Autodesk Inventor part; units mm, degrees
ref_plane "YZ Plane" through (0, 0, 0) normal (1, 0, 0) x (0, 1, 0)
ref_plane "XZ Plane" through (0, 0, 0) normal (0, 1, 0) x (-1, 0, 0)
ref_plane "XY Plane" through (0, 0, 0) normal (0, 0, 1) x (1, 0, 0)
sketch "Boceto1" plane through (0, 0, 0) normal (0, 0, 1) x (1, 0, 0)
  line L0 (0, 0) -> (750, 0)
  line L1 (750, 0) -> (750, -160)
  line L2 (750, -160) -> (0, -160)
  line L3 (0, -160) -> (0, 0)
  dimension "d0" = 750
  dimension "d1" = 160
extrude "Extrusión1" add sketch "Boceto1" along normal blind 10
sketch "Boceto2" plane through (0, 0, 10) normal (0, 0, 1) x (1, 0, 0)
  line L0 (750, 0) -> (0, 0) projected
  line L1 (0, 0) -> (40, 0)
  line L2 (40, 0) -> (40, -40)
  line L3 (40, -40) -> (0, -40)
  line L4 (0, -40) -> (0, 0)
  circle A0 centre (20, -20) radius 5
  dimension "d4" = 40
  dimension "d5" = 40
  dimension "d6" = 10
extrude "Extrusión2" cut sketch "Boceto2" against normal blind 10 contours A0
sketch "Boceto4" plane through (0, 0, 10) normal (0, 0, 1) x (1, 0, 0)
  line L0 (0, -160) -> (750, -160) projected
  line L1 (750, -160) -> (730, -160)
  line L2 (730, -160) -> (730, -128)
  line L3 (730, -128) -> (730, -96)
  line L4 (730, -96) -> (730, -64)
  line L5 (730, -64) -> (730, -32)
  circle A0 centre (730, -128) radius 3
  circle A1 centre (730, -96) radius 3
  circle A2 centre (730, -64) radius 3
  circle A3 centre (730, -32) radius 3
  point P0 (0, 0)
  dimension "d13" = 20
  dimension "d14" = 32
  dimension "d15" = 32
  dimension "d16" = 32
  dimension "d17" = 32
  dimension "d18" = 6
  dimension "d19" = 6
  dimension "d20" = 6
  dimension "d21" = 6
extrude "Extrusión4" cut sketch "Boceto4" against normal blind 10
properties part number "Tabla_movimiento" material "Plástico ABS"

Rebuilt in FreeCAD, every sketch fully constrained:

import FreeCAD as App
import Part
import Sketcher
Q = App.Units.Quantity


def add_polygon(sketch, points):
    """Adds a closed chain of lines whose ends are joined by coincident constraints."""
    first, n = sketch.GeometryCount, len(points)
    for a, b in zip(points, points[1:] + points[:1]):
        sketch.addGeometry(Part.LineSegment(App.Vector(*a, 0), App.Vector(*b, 0)), False)
    for i in range(n):
        sketch.addConstraint(Sketcher.Constraint("Coincident", first + i, 2, first + (i + 1) % n, 1))

doc = App.newDocument("Part")
params = doc.addObject("Spreadsheet::Sheet", "Params")
for row, (alias, value) in enumerate([
    ("sketch1_width", "750 mm"),
    ("sketch1_height", "160 mm"),
    ("pad1_length", "10 mm"),
    ("sketch2_diameter", "10 mm"),
    ("pocket1_length", "10 mm"),
    ("sketch3_diameter", "6 mm"),
    ("pocket2_length", "10 mm"),
], start=1):
    params.set(f"A{row}", alias)
    params.set(f"B{row}", "=" + value)
    params.setAlias(f"B{row}", alias)

body = doc.addObject("PartDesign::Body", "Body")

# Sketch on XY plane
sketch1 = body.newObject("Sketcher::SketchObject", "Sketch")
sketch1.AttachmentSupport = (doc.getObject("XY_Plane"), [""])
sketch1.MapMode = "FlatFace"
add_polygon(sketch1, [(750, 0), (0, 0), (0, -160), (750, -160)])  # lines 0-3
sketch1.addConstraint(Sketcher.Constraint("Horizontal", 0))
sketch1.addConstraint(Sketcher.Constraint("Vertical", 1))
sketch1.addConstraint(Sketcher.Constraint("Horizontal", 2))
sketch1.addConstraint(Sketcher.Constraint("Vertical", 3))
sketch1.addConstraint(Sketcher.Constraint("Coincident", 0, 2, -1, 1))
sketch1.addConstraint(Sketcher.Constraint("DistanceX", 0, 2, 0, 1, Q("750 mm")))
sketch1.addConstraint(Sketcher.Constraint("DistanceY", 1, 2, 1, 1, Q("160 mm")))
sketch1.setExpression("Constraints[9]", "Params.sketch1_width")
sketch1.setExpression("Constraints[10]", "Params.sketch1_height")
pad1 = body.newObject("PartDesign::Pad", "Pad")
pad1.Profile = sketch1
pad1.setExpression("Length", "Params.pad1_length")

# Sketch on XY plane
sketch2 = body.newObject("Sketcher::SketchObject", "Sketch001")
sketch2.AttachmentSupport = (doc.getObject("XY_Plane"), [""])
sketch2.MapMode = "FlatFace"
sketch2.AttachmentOffset = App.Placement(App.Vector(0, 0, 10), App.Rotation())
sketch2.addGeometry(Part.Circle(App.Vector(20, -20, 0), App.Vector(0, 0, 1), 5), False)
sketch2.addConstraint(Sketcher.Constraint("Diameter", 0, Q("10 mm")))
sketch2.addConstraint(Sketcher.Constraint("DistanceX", -1, 1, 0, 3, Q("20 mm")))
sketch2.addConstraint(Sketcher.Constraint("DistanceY", 0, 3, -1, 1, Q("20 mm")))
sketch2.setExpression("Constraints[0]", "Params.sketch2_diameter")
pocket1 = body.newObject("PartDesign::Pocket", "Pocket")
pocket1.Profile = sketch2
pocket1.setExpression("Length", "Params.pocket1_length")

# Sketch on XY plane
sketch3 = body.newObject("Sketcher::SketchObject", "Sketch002")
sketch3.AttachmentSupport = (doc.getObject("XY_Plane"), [""])
sketch3.MapMode = "FlatFace"
sketch3.AttachmentOffset = App.Placement(App.Vector(0, 0, 10), App.Rotation())
sketch3.addGeometry(Part.Circle(App.Vector(730, -128, 0), App.Vector(0, 0, 1), 3), False)
sketch3.addGeometry(Part.Circle(App.Vector(730, -32, 0), App.Vector(0, 0, 1), 3), False)
sketch3.addGeometry(Part.Circle(App.Vector(730, -64, 0), App.Vector(0, 0, 1), 3), False)
sketch3.addGeometry(Part.Circle(App.Vector(730, -96, 0), App.Vector(0, 0, 1), 3), False)
sketch3.addConstraint(Sketcher.Constraint("Equal", 0, 1))
sketch3.addConstraint(Sketcher.Constraint("Equal", 1, 2))
sketch3.addConstraint(Sketcher.Constraint("Equal", 2, 3))
sketch3.addConstraint(Sketcher.Constraint("Vertical", 0, 3, 1, 3))
sketch3.addConstraint(Sketcher.Constraint("Vertical", 1, 3, 2, 3))
sketch3.addConstraint(Sketcher.Constraint("Vertical", 2, 3, 3, 3))
sketch3.addConstraint(Sketcher.Constraint("Diameter", 0, Q("6 mm")))
sketch3.addConstraint(Sketcher.Constraint("DistanceY", 1, 3, -1, 1, Q("32 mm")))
sketch3.addConstraint(Sketcher.Constraint("DistanceY", 2, 3, 1, 3, Q("32 mm")))
sketch3.addConstraint(Sketcher.Constraint("DistanceY", 0, 3, 3, 3, Q("32 mm")))
sketch3.addConstraint(Sketcher.Constraint("DistanceY", 3, 3, 2, 3, Q("32 mm")))
sketch3.addConstraint(Sketcher.Constraint("DistanceX", -1, 1, 0, 3, Q("730 mm")))
sketch3.setExpression("Constraints[6]", "Params.sketch3_diameter")
pocket2 = body.newObject("PartDesign::Pocket", "Pocket001")
pocket2.Profile = sketch3
pocket2.setExpression("Length", "Params.pocket2_length")

doc.recompute()
